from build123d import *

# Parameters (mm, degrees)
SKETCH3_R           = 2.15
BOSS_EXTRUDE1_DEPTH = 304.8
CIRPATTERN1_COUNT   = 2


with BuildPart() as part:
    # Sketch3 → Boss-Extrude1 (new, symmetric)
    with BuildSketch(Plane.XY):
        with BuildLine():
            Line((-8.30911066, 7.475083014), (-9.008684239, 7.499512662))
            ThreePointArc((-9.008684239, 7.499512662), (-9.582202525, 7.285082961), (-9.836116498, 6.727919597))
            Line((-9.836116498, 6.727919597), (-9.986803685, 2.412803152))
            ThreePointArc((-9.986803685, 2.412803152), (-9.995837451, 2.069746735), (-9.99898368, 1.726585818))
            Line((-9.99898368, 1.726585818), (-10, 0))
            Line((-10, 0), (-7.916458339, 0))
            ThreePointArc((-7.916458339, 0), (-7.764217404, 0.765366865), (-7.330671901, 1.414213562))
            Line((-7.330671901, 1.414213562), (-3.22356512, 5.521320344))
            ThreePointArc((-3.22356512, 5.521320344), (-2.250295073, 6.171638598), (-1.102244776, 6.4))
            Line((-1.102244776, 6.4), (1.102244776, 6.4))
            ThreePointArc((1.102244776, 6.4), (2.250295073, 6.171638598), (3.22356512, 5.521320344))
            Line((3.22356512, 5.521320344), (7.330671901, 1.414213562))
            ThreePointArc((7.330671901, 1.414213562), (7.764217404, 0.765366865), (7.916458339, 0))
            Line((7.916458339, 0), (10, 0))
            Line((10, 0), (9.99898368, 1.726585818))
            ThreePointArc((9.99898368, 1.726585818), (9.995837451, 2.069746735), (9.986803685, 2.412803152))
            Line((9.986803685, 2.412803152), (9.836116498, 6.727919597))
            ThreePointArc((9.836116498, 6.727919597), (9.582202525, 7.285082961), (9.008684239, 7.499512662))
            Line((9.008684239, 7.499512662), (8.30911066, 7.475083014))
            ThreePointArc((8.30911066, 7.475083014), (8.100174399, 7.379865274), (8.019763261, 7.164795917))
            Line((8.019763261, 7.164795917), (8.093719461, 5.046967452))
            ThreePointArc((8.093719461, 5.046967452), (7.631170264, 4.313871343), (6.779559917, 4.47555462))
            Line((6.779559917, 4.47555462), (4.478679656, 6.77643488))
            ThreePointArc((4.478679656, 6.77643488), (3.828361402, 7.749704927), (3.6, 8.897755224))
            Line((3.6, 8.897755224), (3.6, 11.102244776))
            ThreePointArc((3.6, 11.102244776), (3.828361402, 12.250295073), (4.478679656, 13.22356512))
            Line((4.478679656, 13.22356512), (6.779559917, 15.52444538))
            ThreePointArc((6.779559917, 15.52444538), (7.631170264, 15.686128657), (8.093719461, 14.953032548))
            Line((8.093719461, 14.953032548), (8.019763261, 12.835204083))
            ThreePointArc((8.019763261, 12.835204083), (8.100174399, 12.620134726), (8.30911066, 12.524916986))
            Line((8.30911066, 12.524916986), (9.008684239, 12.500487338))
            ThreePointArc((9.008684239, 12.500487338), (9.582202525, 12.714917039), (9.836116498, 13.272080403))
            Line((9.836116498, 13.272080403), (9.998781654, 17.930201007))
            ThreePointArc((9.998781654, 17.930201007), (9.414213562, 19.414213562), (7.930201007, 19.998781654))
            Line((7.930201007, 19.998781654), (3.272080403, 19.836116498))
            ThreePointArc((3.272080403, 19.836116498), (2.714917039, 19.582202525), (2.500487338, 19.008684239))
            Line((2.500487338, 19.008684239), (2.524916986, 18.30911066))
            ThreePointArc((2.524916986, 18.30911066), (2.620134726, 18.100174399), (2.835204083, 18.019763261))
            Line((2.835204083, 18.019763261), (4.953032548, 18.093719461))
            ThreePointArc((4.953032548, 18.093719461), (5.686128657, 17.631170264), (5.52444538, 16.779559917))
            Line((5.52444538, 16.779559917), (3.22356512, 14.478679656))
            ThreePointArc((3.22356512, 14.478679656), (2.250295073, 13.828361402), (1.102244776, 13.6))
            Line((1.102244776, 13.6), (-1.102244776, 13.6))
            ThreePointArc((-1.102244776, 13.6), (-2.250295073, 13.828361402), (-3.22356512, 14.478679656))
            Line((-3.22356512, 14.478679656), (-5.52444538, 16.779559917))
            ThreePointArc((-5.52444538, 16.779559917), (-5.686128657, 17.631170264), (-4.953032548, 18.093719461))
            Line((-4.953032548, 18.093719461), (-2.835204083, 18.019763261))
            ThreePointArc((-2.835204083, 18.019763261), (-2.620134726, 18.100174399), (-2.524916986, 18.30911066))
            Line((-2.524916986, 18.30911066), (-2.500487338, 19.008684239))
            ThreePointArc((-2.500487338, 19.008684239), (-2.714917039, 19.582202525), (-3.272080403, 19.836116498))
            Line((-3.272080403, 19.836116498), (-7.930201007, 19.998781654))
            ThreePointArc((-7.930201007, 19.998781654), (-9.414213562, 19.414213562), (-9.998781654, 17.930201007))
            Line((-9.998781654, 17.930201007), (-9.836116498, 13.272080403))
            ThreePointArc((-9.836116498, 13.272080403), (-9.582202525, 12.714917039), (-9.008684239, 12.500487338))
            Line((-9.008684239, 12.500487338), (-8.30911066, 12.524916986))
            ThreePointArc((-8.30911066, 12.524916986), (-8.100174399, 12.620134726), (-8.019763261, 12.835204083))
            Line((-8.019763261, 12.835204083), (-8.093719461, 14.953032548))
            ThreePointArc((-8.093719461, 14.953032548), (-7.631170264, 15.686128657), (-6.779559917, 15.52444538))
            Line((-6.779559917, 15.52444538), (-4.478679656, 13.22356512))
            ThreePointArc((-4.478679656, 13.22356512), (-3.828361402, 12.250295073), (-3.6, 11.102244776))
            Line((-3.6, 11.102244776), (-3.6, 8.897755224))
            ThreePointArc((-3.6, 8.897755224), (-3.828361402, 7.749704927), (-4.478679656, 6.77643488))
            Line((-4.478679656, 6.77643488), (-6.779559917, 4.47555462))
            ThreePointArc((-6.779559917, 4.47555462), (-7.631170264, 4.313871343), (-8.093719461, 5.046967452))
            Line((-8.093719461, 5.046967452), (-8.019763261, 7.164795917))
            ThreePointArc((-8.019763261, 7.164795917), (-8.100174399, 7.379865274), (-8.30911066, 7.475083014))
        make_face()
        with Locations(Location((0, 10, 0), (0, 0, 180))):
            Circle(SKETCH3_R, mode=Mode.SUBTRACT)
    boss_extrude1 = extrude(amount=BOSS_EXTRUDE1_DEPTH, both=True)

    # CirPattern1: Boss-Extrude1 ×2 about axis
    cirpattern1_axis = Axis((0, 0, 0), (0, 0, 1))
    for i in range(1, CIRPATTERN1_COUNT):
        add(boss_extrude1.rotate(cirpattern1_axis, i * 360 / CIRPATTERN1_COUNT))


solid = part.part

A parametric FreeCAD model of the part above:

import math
import FreeCAD as App
import Part
import Sketcher
Q = App.Units.Quantity

doc = App.newDocument("Part")
body = doc.addObject("PartDesign::Body", "Body")

# Sketch on XY plane
sketch1 = body.newObject("Sketcher::SketchObject", "Sketch")
sketch1.AttachmentSupport = (doc.getObject("XY_Plane"), [""])
sketch1.MapMode = "FlatFace"
sketch1.addGeometry(Part.LineSegment(App.Vector(-8.31, 7.48, 0), App.Vector(-9.01, 7.5, 0)), False)
sketch1.addGeometry(Part.ArcOfCircle(Part.Circle(App.Vector(-9.04, 6.7, 0), App.Vector(0, 0, 1), 0.8), math.radians(88), math.radians(178)), False)
sketch1.addGeometry(Part.LineSegment(App.Vector(-9.84, 6.73, 0), App.Vector(-9.99, 2.41, 0)), False)
sketch1.addGeometry(Part.ArcOfCircle(Part.Circle(App.Vector(10, 1.71, 0), App.Vector(0, 0, 1), 20), math.radians(178), math.radians(179.97)), False)
sketch1.addGeometry(Part.LineSegment(App.Vector(-10, 1.73, 0), App.Vector(-10, 0, 0)), False)
sketch1.addGeometry(Part.LineSegment(App.Vector(-10, 0, 0), App.Vector(-7.92, 0, 0)), False)
sketch1.addGeometry(Part.ArcOfCircle(Part.Circle(App.Vector(-5.92, 0, 0), App.Vector(0, 0, 1), 2), math.radians(135), math.radians(180)), False)
sketch1.addGeometry(Part.LineSegment(App.Vector(-7.33, 1.41, 0), App.Vector(-3.22, 5.52, 0)), False)
sketch1.addGeometry(Part.ArcOfCircle(Part.Circle(App.Vector(-1.1, 3.4, 0), App.Vector(0, 0, 1), 3), math.radians(90), math.radians(135)), False)
sketch1.addGeometry(Part.LineSegment(App.Vector(-1.1, 6.4, 0), App.Vector(1.1, 6.4, 0)), False)
sketch1.addGeometry(Part.ArcOfCircle(Part.Circle(App.Vector(1.1, 3.4, 0), App.Vector(0, 0, 1), 3), math.radians(45), math.radians(90)), False)
sketch1.addGeometry(Part.LineSegment(App.Vector(3.22, 5.52, 0), App.Vector(7.33, 1.41, 0)), False)
sketch1.addGeometry(Part.ArcOfCircle(Part.Circle(App.Vector(5.92, 0, 0), App.Vector(0, 0, 1), 2), math.radians(0), math.radians(45)), False)
sketch1.addGeometry(Part.LineSegment(App.Vector(7.92, 0, 0), App.Vector(10, 0, 0)), False)
sketch1.addGeometry(Part.LineSegment(App.Vector(10, 0, 0), App.Vector(10, 1.73, 0)), False)
sketch1.addGeometry(Part.ArcOfCircle(Part.Circle(App.Vector(-10, 1.71, 0), App.Vector(0, 0, 1), 20), math.radians(0.03), math.radians(2)), False)
sketch1.addGeometry(Part.LineSegment(App.Vector(9.99, 2.41, 0), App.Vector(9.84, 6.73, 0)), False)
sketch1.addGeometry(Part.ArcOfCircle(Part.Circle(App.Vector(9.04, 6.7, 0), App.Vector(0, 0, 1), 0.8), math.radians(2), math.radians(92)), False)
sketch1.addGeometry(Part.LineSegment(App.Vector(9.01, 7.5, 0), App.Vector(8.31, 7.48, 0)), False)
sketch1.addGeometry(Part.ArcOfCircle(Part.Circle(App.Vector(8.32, 7.18, 0), App.Vector(0, 0, 1), 0.3), math.radians(92), math.radians(182)), False)
sketch1.addGeometry(Part.LineSegment(App.Vector(8.02, 7.16, 0), App.Vector(8.09, 5.05, 0)), False)
sketch1.addGeometry(Part.ArcOfCircle(Part.Circle(App.Vector(7.32, 5.02, 0), App.Vector(0, 0, 1), 0.77), math.radians(-135), math.radians(2)), False)
sketch1.addGeometry(Part.LineSegment(App.Vector(6.78, 4.48, 0), App.Vector(4.48, 6.78, 0)), False)
sketch1.addGeometry(Part.ArcOfCircle(Part.Circle(App.Vector(6.6, 8.9, 0), App.Vector(0, 0, 1), 3), math.radians(180), math.radians(225)), False)
sketch1.addGeometry(Part.LineSegment(App.Vector(3.6, 8.9, 0), App.Vector(3.6, 11.1, 0)), False)
sketch1.addGeometry(Part.ArcOfCircle(Part.Circle(App.Vector(6.6, 11.1, 0), App.Vector(0, 0, 1), 3), math.radians(135), math.radians(180)), False)
sketch1.addGeometry(Part.LineSegment(App.Vector(4.48, 13.22, 0), App.Vector(6.78, 15.52, 0)), False)
sketch1.addGeometry(Part.ArcOfCircle(Part.Circle(App.Vector(7.32, 14.98, 0), App.Vector(0, 0, 1), 0.77), math.radians(-2), math.radians(135)), False)
sketch1.addGeometry(Part.LineSegment(App.Vector(8.09, 14.95, 0), App.Vector(8.02, 12.84, 0)), False)
sketch1.addGeometry(Part.ArcOfCircle(Part.Circle(App.Vector(8.32, 12.82, 0), App.Vector(0, 0, 1), 0.3), math.radians(178), math.radians(268)), False)
sketch1.addGeometry(Part.LineSegment(App.Vector(8.31, 12.52, 0), App.Vector(9.01, 12.5, 0)), False)
sketch1.addGeometry(Part.ArcOfCircle(Part.Circle(App.Vector(9.04, 13.3, 0), App.Vector(0, 0, 1), 0.8), math.radians(-92), math.radians(-2)), False)
sketch1.addGeometry(Part.LineSegment(App.Vector(9.84, 13.27, 0), App.Vector(10, 17.93, 0)), False)
sketch1.addGeometry(Part.ArcOfCircle(Part.Circle(App.Vector(8, 18, 0), App.Vector(0, 0, 1), 2), math.radians(-2), math.radians(92)), False)
sketch1.addGeometry(Part.LineSegment(App.Vector(7.93, 20, 0), App.Vector(3.27, 19.84, 0)), False)
sketch1.addGeometry(Part.ArcOfCircle(Part.Circle(App.Vector(3.3, 19.04, 0), App.Vector(0, 0, 1), 0.8), math.radians(92), math.radians(182)), False)
sketch1.addGeometry(Part.LineSegment(App.Vector(2.5, 19.01, 0), App.Vector(2.52, 18.31, 0)), False)
sketch1.addGeometry(Part.ArcOfCircle(Part.Circle(App.Vector(2.82, 18.32, 0), App.Vector(0, 0, 1), 0.3), math.radians(-178), math.radians(-88)), False)
sketch1.addGeometry(Part.LineSegment(App.Vector(2.84, 18.02, 0), App.Vector(4.95, 18.09, 0)), False)
sketch1.addGeometry(Part.ArcOfCircle(Part.Circle(App.Vector(4.98, 17.32, 0), App.Vector(0, 0, 1), 0.77), math.radians(-45), math.radians(92)), False)
sketch1.addGeometry(Part.LineSegment(App.Vector(5.52, 16.78, 0), App.Vector(3.22, 14.48, 0)), False)
sketch1.addGeometry(Part.ArcOfCircle(Part.Circle(App.Vector(1.1, 16.6, 0), App.Vector(0, 0, 1), 3), math.radians(-90), math.radians(-45)), False)
sketch1.addGeometry(Part.LineSegment(App.Vector(1.1, 13.6, 0), App.Vector(-1.1, 13.6, 0)), False)
sketch1.addGeometry(Part.ArcOfCircle(Part.Circle(App.Vector(-1.1, 16.6, 0), App.Vector(0, 0, 1), 3), math.radians(-135), math.radians(-90)), False)
sketch1.addGeometry(Part.LineSegment(App.Vector(-3.22, 14.48, 0), App.Vector(-5.52, 16.78, 0)), False)
sketch1.addGeometry(Part.ArcOfCircle(Part.Circle(App.Vector(-4.98, 17.32, 0), App.Vector(0, 0, 1), 0.77), math.radians(88), math.radians(225)), False)
sketch1.addGeometry(Part.LineSegment(App.Vector(-4.95, 18.09, 0), App.Vector(-2.84, 18.02, 0)), False)
sketch1.addGeometry(Part.ArcOfCircle(Part.Circle(App.Vector(-2.82, 18.32, 0), App.Vector(0, 0, 1), 0.3), math.radians(-92), math.radians(-2)), False)
sketch1.addGeometry(Part.LineSegment(App.Vector(-2.52, 18.31, 0), App.Vector(-2.5, 19.01, 0)), False)
sketch1.addGeometry(Part.ArcOfCircle(Part.Circle(App.Vector(-3.3, 19.04, 0), App.Vector(0, 0, 1), 0.8), math.radians(-2), math.radians(88)), False)
sketch1.addGeometry(Part.LineSegment(App.Vector(-3.27, 19.84, 0), App.Vector(-7.93, 20, 0)), False)
sketch1.addGeometry(Part.ArcOfCircle(Part.Circle(App.Vector(-8, 18, 0), App.Vector(0, 0, 1), 2), math.radians(88), math.radians(182)), False)
sketch1.addGeometry(Part.LineSegment(App.Vector(-10, 17.93, 0), App.Vector(-9.84, 13.27, 0)), False)
sketch1.addGeometry(Part.ArcOfCircle(Part.Circle(App.Vector(-9.04, 13.3, 0), App.Vector(0, 0, 1), 0.8), math.radians(-178), math.radians(-88)), False)
sketch1.addGeometry(Part.LineSegment(App.Vector(-9.01, 12.5, 0), App.Vector(-8.31, 12.52, 0)), False)
sketch1.addGeometry(Part.ArcOfCircle(Part.Circle(App.Vector(-8.32, 12.82, 0), App.Vector(0, 0, 1), 0.3), math.radians(-88), math.radians(2)), False)
sketch1.addGeometry(Part.LineSegment(App.Vector(-8.02, 12.84, 0), App.Vector(-8.09, 14.95, 0)), False)
sketch1.addGeometry(Part.ArcOfCircle(Part.Circle(App.Vector(-7.32, 14.98, 0), App.Vector(0, 0, 1), 0.77), math.radians(45), math.radians(182)), False)
sketch1.addGeometry(Part.LineSegment(App.Vector(-6.78, 15.52, 0), App.Vector(-4.48, 13.22, 0)), False)
sketch1.addGeometry(Part.ArcOfCircle(Part.Circle(App.Vector(-6.6, 11.1, 0), App.Vector(0, 0, 1), 3), math.radians(0), math.radians(45)), False)
sketch1.addGeometry(Part.LineSegment(App.Vector(-3.6, 11.1, 0), App.Vector(-3.6, 8.9, 0)), False)
sketch1.addGeometry(Part.ArcOfCircle(Part.Circle(App.Vector(-6.6, 8.9, 0), App.Vector(0, 0, 1), 3), math.radians(-45), math.radians(0)), False)
sketch1.addGeometry(Part.LineSegment(App.Vector(-4.48, 6.78, 0), App.Vector(-6.78, 4.48, 0)), False)
sketch1.addGeometry(Part.ArcOfCircle(Part.Circle(App.Vector(-7.32, 5.02, 0), App.Vector(0, 0, 1), 0.77), math.radians(178), math.radians(315)), False)
sketch1.addGeometry(Part.LineSegment(App.Vector(-8.09, 5.05, 0), App.Vector(-8.02, 7.16, 0)), False)
sketch1.addGeometry(Part.ArcOfCircle(Part.Circle(App.Vector(-8.32, 7.18, 0), App.Vector(0, 0, 1), 0.3), math.radians(-2), math.radians(88)), False)
sketch1.addGeometry(Part.Circle(App.Vector(0, 10, 0), App.Vector(0, 0, 1), 2.15), False)
sketch1.addConstraint(Sketcher.Constraint("Tangent", 0, 2, 1, 1))
sketch1.addConstraint(Sketcher.Constraint("Tangent", 1, 2, 2, 1))
sketch1.addConstraint(Sketcher.Constraint("Tangent", 2, 2, 3, 1))
sketch1.addConstraint(Sketcher.Constraint("Tangent", 3, 2, 4, 1))
sketch1.addConstraint(Sketcher.Constraint("Coincident", 4, 2, 5, 1))
sketch1.addConstraint(Sketcher.Constraint("Coincident", 5, 2, 6, 2))
sketch1.addConstraint(Sketcher.Constraint("Tangent", 6, 1, 7, 1))
sketch1.addConstraint(Sketcher.Constraint("Tangent", 7, 2, 8, 2))
sketch1.addConstraint(Sketcher.Constraint("Tangent", 8, 1, 9, 1))
sketch1.addConstraint(Sketcher.Constraint("Tangent", 9, 2, 10, 2))
sketch1.addConstraint(Sketcher.Constraint("Tangent", 10, 1, 11, 1))
sketch1.addConstraint(Sketcher.Constraint("Tangent", 11, 2, 12, 2))
sketch1.addConstraint(Sketcher.Constraint("Coincident", 12, 1, 13, 1))
sketch1.addConstraint(Sketcher.Constraint("Coincident", 13, 2, 14, 1))
sketch1.addConstraint(Sketcher.Constraint("Tangent", 14, 2, 15, 1))
sketch1.addConstraint(Sketcher.Constraint("Tangent", 15, 2, 16, 1))
sketch1.addConstraint(Sketcher.Constraint("Tangent", 16, 2, 17, 1))
sketch1.addConstraint(Sketcher.Constraint("Tangent", 17, 2, 18, 1))
sketch1.addConstraint(Sketcher.Constraint("Tangent", 18, 2, 19, 1))
sketch1.addConstraint(Sketcher.Constraint("Tangent", 19, 2, 20, 1))
sketch1.addConstraint(Sketcher.Constraint("Tangent", 20, 2, 21, 2))
sketch1.addConstraint(Sketcher.Constraint("Tangent", 21, 1, 22, 1))
sketch1.addConstraint(Sketcher.Constraint("Tangent", 22, 2, 23, 2))
sketch1.addConstraint(Sketcher.Constraint("Tangent", 23, 1, 24, 1))
sketch1.addConstraint(Sketcher.Constraint("Tangent", 24, 2, 25, 2))
sketch1.addConstraint(Sketcher.Constraint("Tangent", 25, 1, 26, 1))
sketch1.addConstraint(Sketcher.Constraint("Tangent", 26, 2, 27, 2))
sketch1.addConstraint(Sketcher.Constraint("Tangent", 27, 1, 28, 1))
sketch1.addConstraint(Sketcher.Constraint("Tangent", 28, 2, 29, 1))
sketch1.addConstraint(Sketcher.Constraint("Tangent", 29, 2, 30, 1))
sketch1.addConstraint(Sketcher.Constraint("Tangent", 30, 2, 31, 1))
sketch1.addConstraint(Sketcher.Constraint("Tangent", 31, 2, 32, 1))
sketch1.addConstraint(Sketcher.Constraint("Tangent", 32, 2, 33, 1))
sketch1.addConstraint(Sketcher.Constraint("Tangent", 33, 2, 34, 1))
sketch1.addConstraint(Sketcher.Constraint("Tangent", 34, 2, 35, 1))
sketch1.addConstraint(Sketcher.Constraint("Tangent", 35, 2, 36, 1))
sketch1.addConstraint(Sketcher.Constraint("Tangent", 36, 2, 37, 1))
sketch1.addConstraint(Sketcher.Constraint("Tangent", 37, 2, 38, 1))
sketch1.addConstraint(Sketcher.Constraint("Tangent", 38, 2, 39, 2))
sketch1.addConstraint(Sketcher.Constraint("Tangent", 39, 1, 40, 1))
sketch1.addConstraint(Sketcher.Constraint("Tangent", 40, 2, 41, 2))
sketch1.addConstraint(Sketcher.Constraint("Tangent", 41, 1, 42, 1))
sketch1.addConstraint(Sketcher.Constraint("Tangent", 42, 2, 43, 2))
sketch1.addConstraint(Sketcher.Constraint("Tangent", 43, 1, 44, 1))
sketch1.addConstraint(Sketcher.Constraint("Tangent", 44, 2, 45, 2))
sketch1.addConstraint(Sketcher.Constraint("Tangent", 45, 1, 46, 1))
sketch1.addConstraint(Sketcher.Constraint("Tangent", 46, 2, 47, 1))
sketch1.addConstraint(Sketcher.Constraint("Tangent", 47, 2, 48, 1))
sketch1.addConstraint(Sketcher.Constraint("Tangent", 48, 2, 49, 1))
sketch1.addConstraint(Sketcher.Constraint("Tangent", 49, 2, 50, 1))
sketch1.addConstraint(Sketcher.Constraint("Tangent", 50, 2, 51, 1))
sketch1.addConstraint(Sketcher.Constraint("Tangent", 51, 2, 52, 1))
sketch1.addConstraint(Sketcher.Constraint("Tangent", 52, 2, 53, 1))
sketch1.addConstraint(Sketcher.Constraint("Tangent", 53, 2, 54, 1))
sketch1.addConstraint(Sketcher.Constraint("Tangent", 54, 2, 55, 1))
sketch1.addConstraint(Sketcher.Constraint("Tangent", 55, 2, 56, 1))
sketch1.addConstraint(Sketcher.Constraint("Tangent", 56, 2, 57, 2))
sketch1.addConstraint(Sketcher.Constraint("Tangent", 57, 1, 58, 1))
sketch1.addConstraint(Sketcher.Constraint("Tangent", 58, 2, 59, 2))
sketch1.addConstraint(Sketcher.Constraint("Tangent", 59, 1, 60, 1))
sketch1.addConstraint(Sketcher.Constraint("Tangent", 60, 2, 61, 2))
sketch1.addConstraint(Sketcher.Constraint("Tangent", 61, 1, 62, 1))
sketch1.addConstraint(Sketcher.Constraint("Tangent", 62, 2, 63, 2))
sketch1.addConstraint(Sketcher.Constraint("Tangent", 63, 1, 64, 1))
sketch1.addConstraint(Sketcher.Constraint("Tangent", 64, 2, 65, 1))
sketch1.addConstraint(Sketcher.Constraint("Tangent", 65, 2, 0, 1))
sketch1.addConstraint(Sketcher.Constraint("Horizontal", 5))
sketch1.addConstraint(Sketcher.Constraint("Horizontal", 9))
sketch1.addConstraint(Sketcher.Constraint("Horizontal", 13))
sketch1.addConstraint(Sketcher.Constraint("Vertical", 24))
sketch1.addConstraint(Sketcher.Constraint("Horizontal", 42))
sketch1.addConstraint(Sketcher.Constraint("Vertical", 60))
sketch1.addConstraint(Sketcher.Constraint("Equal", 8, 10))
sketch1.addConstraint(Sketcher.Constraint("Equal", 6, 12))
sketch1.addConstraint(Sketcher.Constraint("Equal", 3, 15))
sketch1.addConstraint(Sketcher.Constraint("Equal", 1, 17))
sketch1.addConstraint(Sketcher.Constraint("Equal", 10, 23))
sketch1.addConstraint(Sketcher.Constraint("Equal", 23, 25))
sketch1.addConstraint(Sketcher.Constraint("Equal", 21, 27))
sketch1.addConstraint(Sketcher.Constraint("Equal", 19, 29))
sketch1.addConstraint(Sketcher.Constraint("Equal", 17, 31))
sketch1.addConstraint(Sketcher.Constraint("Equal", 12, 33))
sketch1.addConstraint(Sketcher.Constraint("Equal", 31, 35))
sketch1.addConstraint(Sketcher.Constraint("Equal", 29, 37))
sketch1.addConstraint(Sketcher.Constraint("Equal", 27, 39))
sketch1.addConstraint(Sketcher.Constraint("Equal", 25, 41))
sketch1.addConstraint(Sketcher.Constraint("Equal", 41, 43))
sketch1.addConstraint(Sketcher.Constraint("Equal", 39, 45))
sketch1.addConstraint(Sketcher.Constraint("Equal", 37, 47))
sketch1.addConstraint(Sketcher.Constraint("Equal", 35, 49))
sketch1.addConstraint(Sketcher.Constraint("Equal", 33, 51))
sketch1.addConstraint(Sketcher.Constraint("Equal", 49, 53))
sketch1.addConstraint(Sketcher.Constraint("Equal", 47, 55))
sketch1.addConstraint(Sketcher.Constraint("Equal", 45, 57))
sketch1.addConstraint(Sketcher.Constraint("Equal", 43, 59))
sketch1.addConstraint(Sketcher.Constraint("Equal", 59, 61))
sketch1.addConstraint(Sketcher.Constraint("Equal", 57, 63))
sketch1.addConstraint(Sketcher.Constraint("Equal", 55, 65))
sketch1.addConstraint(Sketcher.Constraint("Symmetric", 6, 3, 12, 3, -1, 1))
sketch1.addConstraint(Sketcher.Constraint("Symmetric", 4, 2, 13, 2, -1, 1))
sketch1.addConstraint(Sketcher.Constraint("Symmetric", 3, 3, 15, 3, -2))
sketch1.addConstraint(Sketcher.Constraint("Symmetric", 1, 3, 17, 3, -2))
sketch1.addConstraint(Sketcher.Constraint("Symmetric", 39, 3, 45, 3, -2))
sketch1.addConstraint(Sketcher.Constraint("Symmetric", 37, 3, 47, 3, -2))
sketch1.addConstraint(Sketcher.Constraint("Symmetric", 35, 3, 49, 3, -2))
sketch1.addConstraint(Sketcher.Constraint("Symmetric", 33, 3, 51, 3, -2))
sketch1.addConstraint(Sketcher.Constraint("Symmetric", 31, 3, 53, 3, -2))
sketch1.addConstraint(Sketcher.Constraint("Symmetric", 29, 3, 55, 3, -2))
sketch1.addConstraint(Sketcher.Constraint("Symmetric", 27, 3, 57, 3, -2))
sketch1.addConstraint(Sketcher.Constraint("Symmetric", 25, 3, 59, 3, -2))
sketch1.addConstraint(Sketcher.Constraint("Symmetric", 21, 3, 63, 3, -2))
sketch1.addConstraint(Sketcher.Constraint("Symmetric", 19, 3, 65, 3, -2))
sketch1.addConstraint(Sketcher.Constraint("Symmetric", 7, 2, 10, 1, -2))
sketch1.addConstraint(Sketcher.Constraint("PointOnObject", 66, 3, -2))
sketch1.addConstraint(Sketcher.Constraint("PointOnObject", 4, 2, -1))
sketch1.addConstraint(Sketcher.Constraint("Perpendicular", 0, 2))
sketch1.addConstraint(Sketcher.Constraint("Perpendicular", 7, 11))
sketch1.addConstraint(Sketcher.Constraint("Perpendicular", 18, 20))
sketch1.addConstraint(Sketcher.Constraint("Parallel", 11, 22))
sketch1.addConstraint(Sketcher.Constraint("Perpendicular", 22, 26))
sketch1.addConstraint(Sketcher.Constraint("Parallel", 2, 28))
sketch1.addConstraint(Sketcher.Constraint("Perpendicular", 28, 30))
sketch1.addConstraint(Sketcher.Constraint("Perpendicular", 30, 32))
sketch1.addConstraint(Sketcher.Constraint("Perpendicular", 20, 34))
sketch1.addConstraint(Sketcher.Constraint("Perpendicular", 34, 36))
sketch1.addConstraint(Sketcher.Constraint("Perpendicular", 36, 38))
sketch1.addConstraint(Sketcher.Constraint("Parallel", 26, 40))
sketch1.addConstraint(Sketcher.Constraint("Perpendicular", 40, 44))
sketch1.addConstraint(Sketcher.Constraint("Perpendicular", 58, 62))
sketch1.addConstraint(Sketcher.Constraint("Vertical", 21, 3, 27, 3))
sketch1.addConstraint(Sketcher.Constraint("Vertical", 19, 3, 29, 3))
sketch1.addConstraint(Sketcher.Constraint("Vertical", 17, 3, 31, 3))
sketch1.addConstraint(Sketcher.Constraint("Vertical", 10, 3, 41, 3))
sketch1.addConstraint(Sketcher.Constraint("Equal", 42, 24))
sketch1.addConstraint(Sketcher.Constraint("Equal", 32, 34))
sketch1.addConstraint(Sketcher.Constraint("Equal", 30, 36))
sketch1.addConstraint(Sketcher.Constraint("Equal", 28, 38))
sketch1.addConstraint(Sketcher.Constraint("Equal", 26, 40))
sketch1.addConstraint(Sketcher.Constraint("Radius", 6, Q("2 mm")))
sketch1.addConstraint(Sketcher.Constraint("Radius", 8, Q("3 mm")))
sketch1.addConstraint(Sketcher.Constraint("Diameter", 66, Q("4.3 mm")))
sketch1.addConstraint(Sketcher.Constraint("Radius", 1, Q("0.8 mm")))
sketch1.addConstraint(Sketcher.Constraint("Radius", 19, Q("0.3 mm")))
sketch1.addConstraint(Sketcher.Constraint("Angle", 0, Q("178 deg")))
sketch1.addConstraint(Sketcher.Constraint("DistanceX", -1, 1, 33, 3, Q("8 mm")))
sketch1.addConstraint(Sketcher.Constraint("DistanceY", -1, 1, 33, 3, Q("18 mm")))
sketch1.addConstraint(Sketcher.Constraint("DistanceY", -1, 1, 66, 3, Q("10 mm")))
sketch1.addConstraint(Sketcher.Constraint("DistanceX", 4, 2, -1, 1, Q("10 mm")))
sketch1.addConstraint(Sketcher.Constraint("Distance", 0, Q("0.7 mm")))
sketch1.addConstraint(Sketcher.Constraint("DistanceY", -1, 1, 1, 3, Q("6.7 mm")))
sketch1.addConstraint(Sketcher.Constraint("DistanceY", -1, 1, 8, 3, Q("3.4 mm")))
sketch1.addConstraint(Sketcher.Constraint("DistanceX", -1, 1, 23, 3, Q("6.6 mm")))
sketch1.addConstraint(Sketcher.Constraint("Radius", 21, Q("0.770092 mm")))
sketch1.addConstraint(Sketcher.Constraint("Radius", 3, Q("20.000005 mm")))
sketch1.addConstraint(Sketcher.Constraint("DistanceX", 5, 1, 5, 2, Q("2.083542 mm")))
sketch1.addConstraint(Sketcher.Constraint("Distance", 2, Q("4.317747 mm")))
pad1 = body.newObject("PartDesign::Pad", "Pad")
pad1.Profile = sketch1
pad1.Length = 609.6
pad1.Midplane = True
doc.recompute()

polarpattern = body.newObject("PartDesign::PolarPattern", "PolarPattern")
polarpattern.Originals = [pad1]
polarpattern.Axis = (doc.getObject("Z_Axis"), [""])
polarpattern.Angle = 360
polarpattern.Occurrences = 2
body.Tip = polarpattern

doc.recompute()
